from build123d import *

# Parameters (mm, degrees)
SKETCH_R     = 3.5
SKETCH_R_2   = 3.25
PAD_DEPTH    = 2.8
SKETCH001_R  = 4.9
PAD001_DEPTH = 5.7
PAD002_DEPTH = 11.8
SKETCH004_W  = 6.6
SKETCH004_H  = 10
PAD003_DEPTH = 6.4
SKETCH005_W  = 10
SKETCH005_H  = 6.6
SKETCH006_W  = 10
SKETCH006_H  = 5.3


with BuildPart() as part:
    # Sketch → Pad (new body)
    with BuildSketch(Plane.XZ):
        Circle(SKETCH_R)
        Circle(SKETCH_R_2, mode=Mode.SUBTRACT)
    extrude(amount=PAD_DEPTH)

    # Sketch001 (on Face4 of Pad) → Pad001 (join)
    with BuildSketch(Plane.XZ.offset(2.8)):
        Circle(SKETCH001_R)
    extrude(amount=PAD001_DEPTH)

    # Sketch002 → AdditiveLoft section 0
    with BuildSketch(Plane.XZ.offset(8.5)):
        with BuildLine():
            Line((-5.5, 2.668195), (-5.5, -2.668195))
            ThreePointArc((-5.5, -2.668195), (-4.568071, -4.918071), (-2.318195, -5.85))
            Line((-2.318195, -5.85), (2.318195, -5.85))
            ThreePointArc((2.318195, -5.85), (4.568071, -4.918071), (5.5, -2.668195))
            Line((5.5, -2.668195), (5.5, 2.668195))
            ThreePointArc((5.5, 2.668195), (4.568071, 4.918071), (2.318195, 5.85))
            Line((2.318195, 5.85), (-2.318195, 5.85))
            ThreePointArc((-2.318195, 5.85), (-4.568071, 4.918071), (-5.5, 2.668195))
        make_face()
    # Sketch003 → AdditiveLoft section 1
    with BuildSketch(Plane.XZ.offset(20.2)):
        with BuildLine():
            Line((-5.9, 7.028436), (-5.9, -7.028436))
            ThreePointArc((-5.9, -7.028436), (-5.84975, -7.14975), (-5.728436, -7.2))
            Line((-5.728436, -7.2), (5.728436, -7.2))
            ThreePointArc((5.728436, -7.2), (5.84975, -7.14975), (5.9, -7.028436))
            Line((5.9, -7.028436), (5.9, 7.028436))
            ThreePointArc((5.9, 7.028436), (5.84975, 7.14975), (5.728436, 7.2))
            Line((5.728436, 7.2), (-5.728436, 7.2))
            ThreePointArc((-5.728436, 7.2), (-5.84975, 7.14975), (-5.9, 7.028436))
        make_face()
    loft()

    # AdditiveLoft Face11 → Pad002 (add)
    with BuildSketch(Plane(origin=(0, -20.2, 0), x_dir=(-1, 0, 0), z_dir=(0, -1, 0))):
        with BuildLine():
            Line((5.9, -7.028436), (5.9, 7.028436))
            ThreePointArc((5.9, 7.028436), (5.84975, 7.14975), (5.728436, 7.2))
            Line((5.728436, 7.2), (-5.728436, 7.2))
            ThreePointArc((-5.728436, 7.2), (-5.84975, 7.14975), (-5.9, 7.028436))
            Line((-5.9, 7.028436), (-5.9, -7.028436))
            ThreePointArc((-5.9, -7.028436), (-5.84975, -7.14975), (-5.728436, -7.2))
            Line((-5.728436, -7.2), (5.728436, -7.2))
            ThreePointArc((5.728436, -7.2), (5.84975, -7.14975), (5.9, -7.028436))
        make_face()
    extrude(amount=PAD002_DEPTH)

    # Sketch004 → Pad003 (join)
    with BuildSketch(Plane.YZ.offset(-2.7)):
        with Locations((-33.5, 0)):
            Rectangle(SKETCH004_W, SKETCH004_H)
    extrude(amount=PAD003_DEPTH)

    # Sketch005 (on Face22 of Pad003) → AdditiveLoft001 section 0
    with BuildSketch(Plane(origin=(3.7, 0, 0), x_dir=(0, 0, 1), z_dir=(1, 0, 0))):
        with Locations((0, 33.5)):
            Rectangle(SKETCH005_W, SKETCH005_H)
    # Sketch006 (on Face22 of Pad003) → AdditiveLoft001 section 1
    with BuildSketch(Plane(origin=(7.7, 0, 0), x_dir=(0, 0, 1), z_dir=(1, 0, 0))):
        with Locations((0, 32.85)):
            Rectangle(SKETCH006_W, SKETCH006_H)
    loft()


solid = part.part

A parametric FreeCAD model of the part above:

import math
import FreeCAD as App
import Part
import Sketcher

doc = App.newDocument("Part")
body = doc.addObject("PartDesign::Body", "Body")

# Sketch on XZ plane
sketch1 = body.newObject("Sketcher::SketchObject", "Sketch")
sketch1.AttachmentSupport = (doc.getObject("XZ_Plane"), [""])
sketch1.MapMode = "FlatFace"
sketch1.addGeometry(Part.Circle(App.Vector(0, 0, 0), App.Vector(0, 0, 1), 3.5), False)
sketch1.addGeometry(Part.Circle(App.Vector(0, 0, 0), App.Vector(0, 0, 1), 3.2), False)
sketch1.addConstraint(Sketcher.Constraint("Coincident", 0, 3, -1, 1))
sketch1.addConstraint(Sketcher.Constraint("Coincident", 1, 3, -1, 1))
sketch1.addConstraint(Sketcher.Constraint("Diameter", 0, 7.0))
sketch1.addConstraint(Sketcher.Constraint("Diameter", 1, 6.5))
pad1 = body.newObject("PartDesign::Pad", "Pad")
pad1.Profile = sketch1
pad1.Length = 2.8

# Sketch on XZ plane
sketch2 = body.newObject("Sketcher::SketchObject", "Sketch001")
sketch2.AttachmentSupport = (doc.getObject("XZ_Plane"), [""])
sketch2.MapMode = "FlatFace"
sketch2.AttachmentOffset = App.Placement(App.Vector(0, 0, 2.8), App.Rotation())
sketch2.addGeometry(Part.Circle(App.Vector(0, 0, 0), App.Vector(0, 0, 1), 4.9), False)
sketch2.addConstraint(Sketcher.Constraint("Coincident", 0, 3, -1, 1))
sketch2.addConstraint(Sketcher.Constraint("Diameter", 0, 9.8))
pad2 = body.newObject("PartDesign::Pad", "Pad001")
pad2.Profile = sketch2
pad2.Length = 5.7

# Sketch on XZ plane
sketch3 = body.newObject("Sketcher::SketchObject", "Sketch002")
sketch3.AttachmentSupport = (doc.getObject("XZ_Plane"), [""])
sketch3.MapMode = "FlatFace"
sketch3.AttachmentOffset = App.Placement(App.Vector(0, 0, 8.5), App.Rotation())
sketch3.addGeometry(Part.LineSegment(App.Vector(-5.5, 2.7, 0), App.Vector(-5.5, -2.7, 0)), False)
sketch3.addGeometry(Part.ArcOfCircle(Part.Circle(App.Vector(-2.3, -2.7, 0), App.Vector(0, 0, 1), 3.2), math.radians(180), math.radians(270)), False)
sketch3.addGeometry(Part.LineSegment(App.Vector(-2.3, -5.8, 0), App.Vector(2.3, -5.8, 0)), False)
sketch3.addGeometry(Part.ArcOfCircle(Part.Circle(App.Vector(2.3, -2.7, 0), App.Vector(0, 0, 1), 3.2), math.radians(-90), math.radians(0)), False)
sketch3.addGeometry(Part.LineSegment(App.Vector(5.5, -2.7, 0), App.Vector(5.5, 2.7, 0)), False)
sketch3.addGeometry(Part.ArcOfCircle(Part.Circle(App.Vector(2.3, 2.7, 0), App.Vector(0, 0, 1), 3.2), math.radians(0), math.radians(90)), False)
sketch3.addGeometry(Part.LineSegment(App.Vector(2.3, 5.8, 0), App.Vector(-2.3, 5.8, 0)), False)
sketch3.addGeometry(Part.ArcOfCircle(Part.Circle(App.Vector(-2.3, 2.7, 0), App.Vector(0, 0, 1), 3.2), math.radians(90), math.radians(180)), False)
sketch3.addConstraint(Sketcher.Constraint("Tangent", 0, 2, 1, 1))
sketch3.addConstraint(Sketcher.Constraint("Tangent", 1, 2, 2, 1))
sketch3.addConstraint(Sketcher.Constraint("Tangent", 2, 2, 3, 1))
sketch3.addConstraint(Sketcher.Constraint("Tangent", 3, 2, 4, 1))
sketch3.addConstraint(Sketcher.Constraint("Tangent", 4, 2, 5, 1))
sketch3.addConstraint(Sketcher.Constraint("Tangent", 5, 2, 6, 1))
sketch3.addConstraint(Sketcher.Constraint("Tangent", 6, 2, 7, 1))
sketch3.addConstraint(Sketcher.Constraint("Tangent", 7, 2, 0, 1))
sketch3.addConstraint(Sketcher.Constraint("Vertical", 0))
sketch3.addConstraint(Sketcher.Constraint("Horizontal", 2))
sketch3.addConstraint(Sketcher.Constraint("Vertical", 4))
sketch3.addConstraint(Sketcher.Constraint("Horizontal", 6))
sketch3.addConstraint(Sketcher.Constraint("Equal", 1, 3))
sketch3.addConstraint(Sketcher.Constraint("Equal", 3, 5))
sketch3.addConstraint(Sketcher.Constraint("Equal", 5, 7))
sketch3.addConstraint(Sketcher.Constraint("Symmetric", 1, 3, 5, 3, -1, 1))
sketch3.addConstraint(Sketcher.Constraint("DistanceX", 0, 2, -1, 1, 5.5))
sketch3.addConstraint(Sketcher.Constraint("DistanceY", 1, 2, -1, 1, 5.85))
sketch3.addConstraint(Sketcher.Constraint("Radius", 1, 3.181805))

# Sketch on XZ plane
sketch4 = body.newObject("Sketcher::SketchObject", "Sketch003")
sketch4.AttachmentSupport = (doc.getObject("XZ_Plane"), [""])
sketch4.MapMode = "FlatFace"
sketch4.AttachmentOffset = App.Placement(App.Vector(0, 0, 20.2), App.Rotation())
sketch4.addGeometry(Part.LineSegment(App.Vector(-5.9, 7.03, 0), App.Vector(-5.9, -7.03, 0)), False)
sketch4.addGeometry(Part.ArcOfCircle(Part.Circle(App.Vector(-5.73, -7.03, 0), App.Vector(0, 0, 1), 0.17), math.radians(-180), math.radians(-90)), False)
sketch4.addGeometry(Part.LineSegment(App.Vector(-5.73, -7.2, 0), App.Vector(5.73, -7.2, 0)), False)
sketch4.addGeometry(Part.ArcOfCircle(Part.Circle(App.Vector(5.73, -7.03, 0), App.Vector(0, 0, 1), 0.17), math.radians(-90), math.radians(0)), False)
sketch4.addGeometry(Part.LineSegment(App.Vector(5.9, -7.03, 0), App.Vector(5.9, 7.03, 0)), False)
sketch4.addGeometry(Part.ArcOfCircle(Part.Circle(App.Vector(5.73, 7.03, 0), App.Vector(0, 0, 1), 0.17), math.radians(0), math.radians(90)), False)
sketch4.addGeometry(Part.LineSegment(App.Vector(5.73, 7.2, 0), App.Vector(-5.73, 7.2, 0)), False)
sketch4.addGeometry(Part.ArcOfCircle(Part.Circle(App.Vector(-5.73, 7.03, 0), App.Vector(0, 0, 1), 0.17), math.radians(90), math.radians(180)), False)
sketch4.addConstraint(Sketcher.Constraint("Tangent", 0, 2, 1, 1))
sketch4.addConstraint(Sketcher.Constraint("Tangent", 1, 2, 2, 1))
sketch4.addConstraint(Sketcher.Constraint("Tangent", 2, 2, 3, 1))
sketch4.addConstraint(Sketcher.Constraint("Tangent", 3, 2, 4, 1))
sketch4.addConstraint(Sketcher.Constraint("Tangent", 4, 2, 5, 1))
sketch4.addConstraint(Sketcher.Constraint("Tangent", 5, 2, 6, 1))
sketch4.addConstraint(Sketcher.Constraint("Tangent", 6, 2, 7, 1))
sketch4.addConstraint(Sketcher.Constraint("Tangent", 7, 2, 0, 1))
sketch4.addConstraint(Sketcher.Constraint("Vertical", 0))
sketch4.addConstraint(Sketcher.Constraint("Horizontal", 2))
sketch4.addConstraint(Sketcher.Constraint("Vertical", 4))
sketch4.addConstraint(Sketcher.Constraint("Horizontal", 6))
sketch4.addConstraint(Sketcher.Constraint("Equal", 1, 3))
sketch4.addConstraint(Sketcher.Constraint("Equal", 3, 5))
sketch4.addConstraint(Sketcher.Constraint("Equal", 5, 7))
sketch4.addConstraint(Sketcher.Constraint("Symmetric", 1, 3, 5, 3, -1, 1))
sketch4.addConstraint(Sketcher.Constraint("DistanceX", 0, 2, -1, 1, 5.9))
sketch4.addConstraint(Sketcher.Constraint("DistanceY", 1, 2, -1, 1, 7.2))
sketch4.addConstraint(Sketcher.Constraint("Radius", 1, 0.171564))

additiveloft = body.newObject("PartDesign::AdditiveLoft", "AdditiveLoft")
additiveloft.Profile = sketch3
additiveloft.Sections = [sketch4]

# Sketch on XZ plane
sketch5 = body.newObject("Sketcher::SketchObject", "Sketch004")
sketch5.AttachmentSupport = (doc.getObject("XZ_Plane"), [""])
sketch5.MapMode = "FlatFace"
sketch5.AttachmentOffset = App.Placement(App.Vector(0, 0, 20.2), App.Rotation())
sketch5.addGeometry(Part.LineSegment(App.Vector(-5.9, 7.03, 0), App.Vector(-5.9, -7.03, 0)), False)
sketch5.addGeometry(Part.ArcOfCircle(Part.Circle(App.Vector(-5.73, -7.03, 0), App.Vector(0, 0, 1), 0.17), math.radians(-180), math.radians(-90)), False)
sketch5.addGeometry(Part.LineSegment(App.Vector(-5.73, -7.2, 0), App.Vector(5.73, -7.2, 0)), False)
sketch5.addGeometry(Part.ArcOfCircle(Part.Circle(App.Vector(5.73, -7.03, 0), App.Vector(0, 0, 1), 0.17), math.radians(-90), math.radians(0)), False)
sketch5.addGeometry(Part.LineSegment(App.Vector(5.9, -7.03, 0), App.Vector(5.9, 7.03, 0)), False)
sketch5.addGeometry(Part.ArcOfCircle(Part.Circle(App.Vector(5.73, 7.03, 0), App.Vector(0, 0, 1), 0.17), math.radians(0), math.radians(90)), False)
sketch5.addGeometry(Part.LineSegment(App.Vector(5.73, 7.2, 0), App.Vector(-5.73, 7.2, 0)), False)
sketch5.addGeometry(Part.ArcOfCircle(Part.Circle(App.Vector(-5.73, 7.03, 0), App.Vector(0, 0, 1), 0.17), math.radians(90), math.radians(180)), False)
sketch5.addConstraint(Sketcher.Constraint("Tangent", 0, 2, 1, 1))
sketch5.addConstraint(Sketcher.Constraint("Tangent", 1, 2, 2, 1))
sketch5.addConstraint(Sketcher.Constraint("Tangent", 2, 2, 3, 1))
sketch5.addConstraint(Sketcher.Constraint("Tangent", 3, 2, 4, 1))
sketch5.addConstraint(Sketcher.Constraint("Tangent", 4, 2, 5, 1))
sketch5.addConstraint(Sketcher.Constraint("Tangent", 5, 2, 6, 1))
sketch5.addConstraint(Sketcher.Constraint("Tangent", 6, 2, 7, 1))
sketch5.addConstraint(Sketcher.Constraint("Tangent", 7, 2, 0, 1))
sketch5.addConstraint(Sketcher.Constraint("Vertical", 0))
sketch5.addConstraint(Sketcher.Constraint("Horizontal", 2))
sketch5.addConstraint(Sketcher.Constraint("Vertical", 4))
sketch5.addConstraint(Sketcher.Constraint("Horizontal", 6))
sketch5.addConstraint(Sketcher.Constraint("Equal", 1, 3))
sketch5.addConstraint(Sketcher.Constraint("Equal", 3, 5))
sketch5.addConstraint(Sketcher.Constraint("Equal", 5, 7))
sketch5.addConstraint(Sketcher.Constraint("Symmetric", 1, 3, 5, 3, -1, 1))
sketch5.addConstraint(Sketcher.Constraint("DistanceX", 0, 2, -1, 1, 5.9))
sketch5.addConstraint(Sketcher.Constraint("DistanceY", 1, 2, -1, 1, 7.2))
sketch5.addConstraint(Sketcher.Constraint("Radius", 1, 0.171564))
pad3 = body.newObject("PartDesign::Pad", "Pad002")
pad3.Profile = sketch5
pad3.Length = 11.8

# Sketch on YZ plane
sketch6 = body.newObject("Sketcher::SketchObject", "Sketch005")
sketch6.AttachmentSupport = (doc.getObject("YZ_Plane"), [""])
sketch6.MapMode = "FlatFace"
sketch6.AttachmentOffset = App.Placement(App.Vector(0, 0, -2.7), App.Rotation())
sketch6.addGeometry(Part.LineSegment(App.Vector(-37, 5, 0), App.Vector(-37, -5, 0)), False)
sketch6.addGeometry(Part.LineSegment(App.Vector(-37, -5, 0), App.Vector(-30, -5, 0)), False)
sketch6.addGeometry(Part.LineSegment(App.Vector(-30, -5, 0), App.Vector(-30, 5, 0)), False)
sketch6.addGeometry(Part.LineSegment(App.Vector(-30, 5, 0), App.Vector(-37, 5, 0)), False)
sketch6.addConstraint(Sketcher.Constraint("Coincident", 0, 2, 1, 1))
sketch6.addConstraint(Sketcher.Constraint("Coincident", 1, 2, 2, 1))
sketch6.addConstraint(Sketcher.Constraint("Coincident", 2, 2, 3, 1))
sketch6.addConstraint(Sketcher.Constraint("Coincident", 3, 2, 0, 1))
sketch6.addConstraint(Sketcher.Constraint("Vertical", 0))
sketch6.addConstraint(Sketcher.Constraint("Horizontal", 1))
sketch6.addConstraint(Sketcher.Constraint("Vertical", 2))
sketch6.addConstraint(Sketcher.Constraint("Horizontal", 3))
sketch6.addConstraint(Sketcher.Constraint("DistanceY", 0, 2, 0, 1, 10.0))
sketch6.addConstraint(Sketcher.Constraint("DistanceX", 1, 1, 1, 2, 6.6))
sketch6.addConstraint(Sketcher.Constraint("DistanceY", 0, 2, -1, 1, 5.0))
sketch6.addConstraint(Sketcher.Constraint("DistanceX", 0, 2, -1, 1, 36.8))
pad4 = body.newObject("PartDesign::Pad", "Pad003")
pad4.Profile = sketch6
pad4.Length = 6.4

# Sketch on YZ plane
sketch7 = body.newObject("Sketcher::SketchObject", "Sketch006")
sketch7.AttachmentSupport = (doc.getObject("YZ_Plane"), [""])
sketch7.MapMode = "FlatFace"
sketch7.AttachmentOffset = App.Placement(App.Vector(0, 0, 3.7), App.Rotation())
sketch7.addGeometry(Part.LineSegment(App.Vector(-37, -5, 0), App.Vector(-30, -5, 0)), False)
sketch7.addGeometry(Part.LineSegment(App.Vector(-30, -5, 0), App.Vector(-30, 5, 0)), False)
sketch7.addGeometry(Part.LineSegment(App.Vector(-30, 5, 0), App.Vector(-37, 5, 0)), False)
sketch7.addGeometry(Part.LineSegment(App.Vector(-37, 5, 0), App.Vector(-37, -5, 0)), False)
sketch7.addConstraint(Sketcher.Constraint("Coincident", 0, 2, 1, 1))
sketch7.addConstraint(Sketcher.Constraint("Coincident", 1, 2, 2, 1))
sketch7.addConstraint(Sketcher.Constraint("Coincident", 2, 2, 3, 1))
sketch7.addConstraint(Sketcher.Constraint("Coincident", 3, 2, 0, 1))
sketch7.addConstraint(Sketcher.Constraint("Horizontal", 0))
sketch7.addConstraint(Sketcher.Constraint("Vertical", 1))
sketch7.addConstraint(Sketcher.Constraint("Horizontal", 2))
sketch7.addConstraint(Sketcher.Constraint("Vertical", 3))
sketch7.addConstraint(Sketcher.Constraint("DistanceY", 1, 1, 1, 2, 10.0))
sketch7.addConstraint(Sketcher.Constraint("DistanceX", 0, 1, 0, 2, 6.6))
sketch7.addConstraint(Sketcher.Constraint("DistanceY", 0, 2, -1, 1, 5.0))
sketch7.addConstraint(Sketcher.Constraint("DistanceX", 0, 2, -1, 1, 30.2))

# Sketch on YZ plane
sketch8 = body.newObject("Sketcher::SketchObject", "Sketch007")
sketch8.AttachmentSupport = (doc.getObject("YZ_Plane"), [""])
sketch8.MapMode = "FlatFace"
sketch8.AttachmentOffset = App.Placement(App.Vector(0, 0, 7.7), App.Rotation())
sketch8.addGeometry(Part.LineSegment(App.Vector(-36, -5, 0), App.Vector(-30, -5, 0)), False)
sketch8.addGeometry(Part.LineSegment(App.Vector(-30, -5, 0), App.Vector(-30, 5, 0)), False)
sketch8.addGeometry(Part.LineSegment(App.Vector(-30, 5, 0), App.Vector(-36, 5, 0)), False)
sketch8.addGeometry(Part.LineSegment(App.Vector(-36, 5, 0), App.Vector(-36, -5, 0)), False)
sketch8.addConstraint(Sketcher.Constraint("Coincident", 0, 2, 1, 1))
sketch8.addConstraint(Sketcher.Constraint("Coincident", 1, 2, 2, 1))
sketch8.addConstraint(Sketcher.Constraint("Coincident", 2, 2, 3, 1))
sketch8.addConstraint(Sketcher.Constraint("Coincident", 3, 2, 0, 1))
sketch8.addConstraint(Sketcher.Constraint("Horizontal", 0))
sketch8.addConstraint(Sketcher.Constraint("Vertical", 1))
sketch8.addConstraint(Sketcher.Constraint("Horizontal", 2))
sketch8.addConstraint(Sketcher.Constraint("Vertical", 3))
sketch8.addConstraint(Sketcher.Constraint("DistanceY", 1, 1, 1, 2, 10.0))
sketch8.addConstraint(Sketcher.Constraint("DistanceX", 0, 1, 0, 2, 5.3))
sketch8.addConstraint(Sketcher.Constraint("DistanceY", 0, 2, -1, 1, 5.0))
sketch8.addConstraint(Sketcher.Constraint("DistanceX", 0, 2, -1, 1, 30.2))

additiveloft2 = body.newObject("PartDesign::AdditiveLoft", "AdditiveLoft001")
additiveloft2.Profile = sketch7
additiveloft2.Sections = [sketch8]

doc.recompute()
